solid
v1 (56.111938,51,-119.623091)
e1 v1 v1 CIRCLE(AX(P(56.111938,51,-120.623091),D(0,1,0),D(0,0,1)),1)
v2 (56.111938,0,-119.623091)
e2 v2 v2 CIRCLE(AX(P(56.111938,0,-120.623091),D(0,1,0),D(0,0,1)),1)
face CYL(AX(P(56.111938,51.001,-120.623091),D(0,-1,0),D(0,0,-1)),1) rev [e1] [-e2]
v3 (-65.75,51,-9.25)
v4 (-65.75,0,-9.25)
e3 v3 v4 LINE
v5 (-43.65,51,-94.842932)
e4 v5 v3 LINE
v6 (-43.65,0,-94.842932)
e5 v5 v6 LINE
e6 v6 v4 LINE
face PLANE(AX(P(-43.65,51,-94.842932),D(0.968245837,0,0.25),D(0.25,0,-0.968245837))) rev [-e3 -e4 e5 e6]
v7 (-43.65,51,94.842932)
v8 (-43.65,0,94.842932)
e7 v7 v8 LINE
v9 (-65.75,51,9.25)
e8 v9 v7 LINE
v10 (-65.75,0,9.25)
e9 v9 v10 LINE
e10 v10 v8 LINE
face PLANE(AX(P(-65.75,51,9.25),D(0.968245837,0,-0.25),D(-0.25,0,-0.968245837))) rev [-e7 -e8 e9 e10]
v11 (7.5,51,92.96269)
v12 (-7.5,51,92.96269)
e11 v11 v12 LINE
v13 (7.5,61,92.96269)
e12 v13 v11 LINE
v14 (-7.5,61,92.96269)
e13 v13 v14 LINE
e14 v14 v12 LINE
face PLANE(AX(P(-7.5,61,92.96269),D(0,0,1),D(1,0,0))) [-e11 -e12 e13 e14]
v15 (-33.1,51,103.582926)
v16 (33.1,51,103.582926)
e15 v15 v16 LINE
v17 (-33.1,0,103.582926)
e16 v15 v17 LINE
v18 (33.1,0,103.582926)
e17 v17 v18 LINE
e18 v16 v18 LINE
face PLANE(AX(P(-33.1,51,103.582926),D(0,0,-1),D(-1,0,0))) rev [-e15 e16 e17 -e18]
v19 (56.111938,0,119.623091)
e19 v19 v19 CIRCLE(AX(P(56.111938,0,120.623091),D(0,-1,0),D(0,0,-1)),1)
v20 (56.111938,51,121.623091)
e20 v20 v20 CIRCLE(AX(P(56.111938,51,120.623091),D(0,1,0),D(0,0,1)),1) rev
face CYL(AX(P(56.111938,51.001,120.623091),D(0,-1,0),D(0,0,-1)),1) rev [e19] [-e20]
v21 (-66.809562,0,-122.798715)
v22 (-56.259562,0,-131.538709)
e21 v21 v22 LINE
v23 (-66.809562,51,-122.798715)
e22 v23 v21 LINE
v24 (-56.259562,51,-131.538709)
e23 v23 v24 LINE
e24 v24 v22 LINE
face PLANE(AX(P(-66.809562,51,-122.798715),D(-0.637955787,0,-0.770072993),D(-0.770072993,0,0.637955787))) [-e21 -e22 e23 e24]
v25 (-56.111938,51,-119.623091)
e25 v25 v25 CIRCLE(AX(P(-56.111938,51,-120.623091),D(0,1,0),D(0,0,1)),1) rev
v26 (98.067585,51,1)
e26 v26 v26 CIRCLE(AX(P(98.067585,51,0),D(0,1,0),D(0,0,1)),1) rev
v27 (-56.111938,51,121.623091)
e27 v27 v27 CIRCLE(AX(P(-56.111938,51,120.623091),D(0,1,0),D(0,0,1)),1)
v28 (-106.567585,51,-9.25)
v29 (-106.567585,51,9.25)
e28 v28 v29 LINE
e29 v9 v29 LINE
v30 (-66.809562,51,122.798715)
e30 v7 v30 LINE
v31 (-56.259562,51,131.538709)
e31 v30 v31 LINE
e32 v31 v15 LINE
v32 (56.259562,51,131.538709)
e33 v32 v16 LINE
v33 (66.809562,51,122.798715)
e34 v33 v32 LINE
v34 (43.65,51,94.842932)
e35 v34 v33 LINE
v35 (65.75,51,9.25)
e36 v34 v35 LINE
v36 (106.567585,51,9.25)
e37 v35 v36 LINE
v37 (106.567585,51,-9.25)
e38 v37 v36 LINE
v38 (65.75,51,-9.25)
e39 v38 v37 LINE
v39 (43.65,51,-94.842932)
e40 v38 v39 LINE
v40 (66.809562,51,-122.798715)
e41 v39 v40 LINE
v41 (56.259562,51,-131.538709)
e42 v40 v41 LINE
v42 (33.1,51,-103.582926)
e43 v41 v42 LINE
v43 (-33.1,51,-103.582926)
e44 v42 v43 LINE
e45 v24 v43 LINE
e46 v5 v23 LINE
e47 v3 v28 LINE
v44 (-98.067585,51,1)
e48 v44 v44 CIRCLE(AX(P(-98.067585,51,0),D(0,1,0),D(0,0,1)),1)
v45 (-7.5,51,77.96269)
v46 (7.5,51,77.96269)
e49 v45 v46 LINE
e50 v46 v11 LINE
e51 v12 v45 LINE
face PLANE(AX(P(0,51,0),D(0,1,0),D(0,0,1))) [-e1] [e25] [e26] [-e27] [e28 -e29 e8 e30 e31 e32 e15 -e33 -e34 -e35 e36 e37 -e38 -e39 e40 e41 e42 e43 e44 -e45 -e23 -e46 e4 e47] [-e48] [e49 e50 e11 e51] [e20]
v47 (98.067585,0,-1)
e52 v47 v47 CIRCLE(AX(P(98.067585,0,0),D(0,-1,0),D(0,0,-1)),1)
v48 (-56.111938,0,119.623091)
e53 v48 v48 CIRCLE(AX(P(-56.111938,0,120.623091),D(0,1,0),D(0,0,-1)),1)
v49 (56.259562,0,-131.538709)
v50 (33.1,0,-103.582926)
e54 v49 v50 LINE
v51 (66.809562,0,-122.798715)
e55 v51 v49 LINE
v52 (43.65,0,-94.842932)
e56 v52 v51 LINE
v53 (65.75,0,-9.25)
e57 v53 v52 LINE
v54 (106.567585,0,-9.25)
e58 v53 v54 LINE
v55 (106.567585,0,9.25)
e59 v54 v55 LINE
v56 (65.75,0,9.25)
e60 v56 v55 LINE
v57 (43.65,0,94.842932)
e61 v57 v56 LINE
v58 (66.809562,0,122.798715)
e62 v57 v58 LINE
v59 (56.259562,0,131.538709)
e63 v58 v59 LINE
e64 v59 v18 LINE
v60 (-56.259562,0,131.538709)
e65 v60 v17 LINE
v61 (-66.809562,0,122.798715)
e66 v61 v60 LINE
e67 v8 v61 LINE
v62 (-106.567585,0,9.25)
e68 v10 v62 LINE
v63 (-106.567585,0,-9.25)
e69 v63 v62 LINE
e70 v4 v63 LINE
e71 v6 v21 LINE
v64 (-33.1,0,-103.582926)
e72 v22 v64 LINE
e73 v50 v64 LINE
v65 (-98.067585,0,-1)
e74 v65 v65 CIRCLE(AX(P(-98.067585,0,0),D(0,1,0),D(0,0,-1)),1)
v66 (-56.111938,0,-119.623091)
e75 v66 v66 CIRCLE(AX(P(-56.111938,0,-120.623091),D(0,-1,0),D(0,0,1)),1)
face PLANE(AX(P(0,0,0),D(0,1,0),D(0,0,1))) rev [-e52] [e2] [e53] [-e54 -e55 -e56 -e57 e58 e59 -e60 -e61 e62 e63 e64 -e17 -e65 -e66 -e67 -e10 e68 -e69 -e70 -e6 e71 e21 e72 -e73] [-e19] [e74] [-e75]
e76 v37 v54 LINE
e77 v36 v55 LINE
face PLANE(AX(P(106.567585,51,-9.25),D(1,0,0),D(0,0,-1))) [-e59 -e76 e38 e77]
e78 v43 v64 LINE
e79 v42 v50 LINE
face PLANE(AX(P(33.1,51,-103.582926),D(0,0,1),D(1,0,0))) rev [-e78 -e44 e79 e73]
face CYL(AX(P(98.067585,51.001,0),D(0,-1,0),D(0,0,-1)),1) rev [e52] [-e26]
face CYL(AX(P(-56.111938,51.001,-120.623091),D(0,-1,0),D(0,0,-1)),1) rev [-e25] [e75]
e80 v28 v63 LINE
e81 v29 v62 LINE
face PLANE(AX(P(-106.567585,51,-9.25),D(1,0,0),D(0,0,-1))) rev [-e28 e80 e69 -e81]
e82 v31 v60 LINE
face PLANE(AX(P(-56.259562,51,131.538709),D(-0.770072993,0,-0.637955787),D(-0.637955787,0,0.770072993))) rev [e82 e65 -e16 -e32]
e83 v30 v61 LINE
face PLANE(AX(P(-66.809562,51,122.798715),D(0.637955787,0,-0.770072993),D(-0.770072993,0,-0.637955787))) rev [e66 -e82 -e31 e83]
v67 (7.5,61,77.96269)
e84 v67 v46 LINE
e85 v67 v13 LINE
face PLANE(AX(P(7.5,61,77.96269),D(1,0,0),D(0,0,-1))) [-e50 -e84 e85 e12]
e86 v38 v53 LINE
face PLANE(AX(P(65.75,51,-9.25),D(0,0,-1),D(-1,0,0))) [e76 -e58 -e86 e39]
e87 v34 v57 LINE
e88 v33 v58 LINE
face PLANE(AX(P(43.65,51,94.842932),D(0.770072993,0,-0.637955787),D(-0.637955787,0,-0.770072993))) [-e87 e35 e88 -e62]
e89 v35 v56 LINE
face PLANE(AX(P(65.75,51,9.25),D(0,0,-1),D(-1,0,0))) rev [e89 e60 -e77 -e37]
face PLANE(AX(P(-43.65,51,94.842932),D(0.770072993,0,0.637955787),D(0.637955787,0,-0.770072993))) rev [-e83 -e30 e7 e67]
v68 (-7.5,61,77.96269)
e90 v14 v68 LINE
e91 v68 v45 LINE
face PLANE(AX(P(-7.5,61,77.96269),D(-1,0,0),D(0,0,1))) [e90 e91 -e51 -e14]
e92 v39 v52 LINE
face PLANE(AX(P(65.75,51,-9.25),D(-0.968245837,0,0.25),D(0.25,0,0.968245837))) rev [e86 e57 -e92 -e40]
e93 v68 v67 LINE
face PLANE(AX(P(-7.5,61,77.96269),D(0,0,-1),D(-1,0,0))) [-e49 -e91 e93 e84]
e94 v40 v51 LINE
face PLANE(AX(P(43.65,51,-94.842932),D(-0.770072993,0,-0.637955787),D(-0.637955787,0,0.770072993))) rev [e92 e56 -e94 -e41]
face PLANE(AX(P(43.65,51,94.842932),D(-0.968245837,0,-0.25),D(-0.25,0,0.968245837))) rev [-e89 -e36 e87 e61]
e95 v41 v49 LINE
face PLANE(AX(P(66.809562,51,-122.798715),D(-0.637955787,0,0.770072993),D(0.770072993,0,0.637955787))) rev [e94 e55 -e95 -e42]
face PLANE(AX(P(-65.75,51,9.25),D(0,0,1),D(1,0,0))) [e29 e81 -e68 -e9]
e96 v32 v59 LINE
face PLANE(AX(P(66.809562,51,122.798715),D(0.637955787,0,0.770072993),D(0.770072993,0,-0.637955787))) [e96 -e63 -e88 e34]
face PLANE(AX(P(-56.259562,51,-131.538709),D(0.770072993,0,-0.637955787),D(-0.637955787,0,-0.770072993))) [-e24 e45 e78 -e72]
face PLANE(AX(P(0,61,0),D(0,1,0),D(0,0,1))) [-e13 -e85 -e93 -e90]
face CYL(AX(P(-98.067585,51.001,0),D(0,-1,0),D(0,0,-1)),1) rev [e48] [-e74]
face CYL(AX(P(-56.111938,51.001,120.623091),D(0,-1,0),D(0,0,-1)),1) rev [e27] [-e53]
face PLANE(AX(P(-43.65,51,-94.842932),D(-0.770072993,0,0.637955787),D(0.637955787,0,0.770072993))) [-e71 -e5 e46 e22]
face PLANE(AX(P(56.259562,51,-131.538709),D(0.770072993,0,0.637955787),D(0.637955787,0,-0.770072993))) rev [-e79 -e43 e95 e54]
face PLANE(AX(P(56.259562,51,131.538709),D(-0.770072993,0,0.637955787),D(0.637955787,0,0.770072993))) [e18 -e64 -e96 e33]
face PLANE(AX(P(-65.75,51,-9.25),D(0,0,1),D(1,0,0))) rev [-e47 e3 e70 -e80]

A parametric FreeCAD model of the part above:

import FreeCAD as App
import Part
import Sketcher


def add_polygon(sketch, points):
    """Adds a closed chain of lines whose ends are joined by coincident constraints."""
    first, n = sketch.GeometryCount, len(points)
    for a, b in zip(points, points[1:] + points[:1]):
        sketch.addGeometry(Part.LineSegment(App.Vector(*a, 0), App.Vector(*b, 0)), False)
    for i in range(n):
        sketch.addConstraint(Sketcher.Constraint("Coincident", first + i, 2, first + (i + 1) % n, 1))

doc = App.newDocument("Part")
params = doc.addObject("Spreadsheet::Sheet", "Params")
for row, (alias, value) in enumerate([
    ("sketch1_width", "66.2 mm"),
    ("sketch1_height", "18.5 mm"),
    ("sketch1_length", "88.4 mm"),
    ("sketch1_length2", "13.7 mm"),
    ("pad1_length", "51 mm"),
    ("sketch2_diameter", "2 mm"),
    ("pocket1_length", "51 mm"),
    ("sketch3_diameter", "2 mm"),
    ("pocket2_length", "51 mm"),
    ("sketch4_diameter", "2 mm"),
    ("pocket3_length", "51 mm"),
    ("sketch5_width", "15 mm"),
    ("pad2_length", "10 mm"),
], start=1):
    params.set(f"A{row}", alias)
    params.set(f"B{row}", "=" + value)
    params.setAlias(f"B{row}", alias)

body = doc.addObject("PartDesign::Body", "Body")

# Sketch on XZ plane
sketch1 = body.newObject("Sketcher::SketchObject", "Sketch")
sketch1.AttachmentSupport = (doc.getObject("XZ_Plane"), [""])
sketch1.MapMode = "FlatFace"
add_polygon(sketch1, [(44, 95), (66, 9), (107, 9), (107, -9), (66, -9), (44, -95), (67, -123), (56, -132), (33, -104), (-33, -104), (-56, -132), (-67, -123), (-44, -95), (-66, -9), (-107, -9), (-107, 9), (-66, 9), (-44, 95), (-67, 123), (-56, 132), (-33, 104), (33, 104), (56, 132), (67, 123)])  # lines 0-23
sketch1.addConstraint(Sketcher.Constraint("Horizontal", 1))
sketch1.addConstraint(Sketcher.Constraint("Vertical", 2))
sketch1.addConstraint(Sketcher.Constraint("Horizontal", 3))
sketch1.addConstraint(Sketcher.Constraint("Horizontal", 8))
sketch1.addConstraint(Sketcher.Constraint("Horizontal", 13))
sketch1.addConstraint(Sketcher.Constraint("Vertical", 14))
sketch1.addConstraint(Sketcher.Constraint("Horizontal", 15))
sketch1.addConstraint(Sketcher.Constraint("Horizontal", 20))
sketch1.addConstraint(Sketcher.Constraint("Symmetric", 0, 2, 12, 2, -1, 1))
sketch1.addConstraint(Sketcher.Constraint("Symmetric", 2, 2, 14, 2, -1, 1))
sketch1.addConstraint(Sketcher.Constraint("Symmetric", 4, 2, 16, 2, -1, 1))
sketch1.addConstraint(Sketcher.Constraint("Symmetric", 5, 2, 17, 2, -1, 1))
sketch1.addConstraint(Sketcher.Constraint("Symmetric", 6, 2, 18, 2, -1, 1))
sketch1.addConstraint(Sketcher.Constraint("Symmetric", 7, 2, 19, 2, -1, 1))
sketch1.addConstraint(Sketcher.Constraint("Symmetric", 9, 2, 21, 2, -1, 1))
sketch1.addConstraint(Sketcher.Constraint("Symmetric", 10, 2, 22, 2, -1, 1))
sketch1.addConstraint(Sketcher.Constraint("Symmetric", 11, 2, 23, 2, -1, 1))
sketch1.addConstraint(Sketcher.Constraint("Symmetric", 6, 2, 9, 2, -2))
sketch1.addConstraint(Sketcher.Constraint("Symmetric", 5, 2, 10, 2, -2))
sketch1.addConstraint(Sketcher.Constraint("Symmetric", 4, 2, 11, 2, -2))
sketch1.addConstraint(Sketcher.Constraint("Symmetric", 3, 2, 12, 2, -2))
sketch1.addConstraint(Sketcher.Constraint("Perpendicular", 5, 6))
sketch1.addConstraint(Sketcher.Constraint("Perpendicular", 6, 7))
sketch1.addConstraint(Sketcher.Constraint("Perpendicular", 9, 10))
sketch1.addConstraint(Sketcher.Constraint("Parallel", 4, 16))
sketch1.addConstraint(Sketcher.Constraint("Parallel", 11, 21))
sketch1.addConstraint(Sketcher.Constraint("Equal", 5, 7))
sketch1.addConstraint(Sketcher.Constraint("DistanceX", 8, 2, 8, 1, 66.2))
sketch1.addConstraint(Sketcher.Constraint("DistanceY", 2, 2, 2, 1, 18.5))
sketch1.addConstraint(Sketcher.Constraint("Distance", 0, 88.4))
sketch1.addConstraint(Sketcher.Constraint("Distance", 6, 13.7))
sketch1.addConstraint(Sketcher.Constraint("DistanceX", 4, 2, 3, 2, 22.1))
sketch1.addConstraint(Sketcher.Constraint("DistanceX", 11, 2, 4, 2, 87.3))
sketch1.addConstraint(Sketcher.Constraint("Distance", 5, 36.30277))
sketch1.addConstraint(Sketcher.Constraint("DistanceX", 1, 1, 1, 2, 40.817585))
sketch1.setExpression("Constraints[51]", "Params.sketch1_width")
sketch1.setExpression("Constraints[52]", "Params.sketch1_height")
sketch1.setExpression("Constraints[53]", "Params.sketch1_length")
sketch1.setExpression("Constraints[54]", "Params.sketch1_length2")
pad1 = body.newObject("PartDesign::Pad", "Pad")
pad1.Profile = sketch1
pad1.setExpression("Length", "Params.pad1_length")
pad1.Reversed = True

# Sketch on XZ plane
sketch2 = body.newObject("Sketcher::SketchObject", "Sketch001")
sketch2.AttachmentSupport = (doc.getObject("XZ_Plane"), [""])
sketch2.MapMode = "FlatFace"
sketch2.addGeometry(Part.Circle(App.Vector(98.1, 0, 0), App.Vector(0, 0, 1), 1), False)
sketch2.addConstraint(Sketcher.Constraint("PointOnObject", 0, 3, -1))
sketch2.addConstraint(Sketcher.Constraint("Diameter", 0, 2.0))
sketch2.addConstraint(Sketcher.Constraint("DistanceX", -1, 1, 0, 3, 98.067585))
sketch2.setExpression("Constraints[1]", "Params.sketch2_diameter")
pocket1 = body.newObject("PartDesign::Pocket", "Pocket")
pocket1.Profile = sketch2
pocket1.setExpression("Length", "Params.pocket1_length")
doc.recompute()

mirrored = body.newObject("PartDesign::Mirrored", "Mirrored")
mirrored.Originals = [pocket1]
mirrored.MirrorPlane = (doc.getObject("YZ_Plane"), [""])
body.Tip = mirrored

# Sketch on XZ plane
sketch3 = body.newObject("Sketcher::SketchObject", "Sketch002")
sketch3.AttachmentSupport = (doc.getObject("XZ_Plane"), [""])
sketch3.MapMode = "FlatFace"
sketch3.addGeometry(Part.Circle(App.Vector(56.1, 120.6, 0), App.Vector(0, 0, 1), 1), False)
sketch3.addConstraint(Sketcher.Constraint("Diameter", 0, 2.0))
sketch3.addConstraint(Sketcher.Constraint("DistanceY", -1, 1, 0, 3, 120.623091))
sketch3.addConstraint(Sketcher.Constraint("DistanceX", -1, 1, 0, 3, 56.111938))
sketch3.setExpression("Constraints[0]", "Params.sketch3_diameter")
pocket2 = body.newObject("PartDesign::Pocket", "Pocket001")
pocket2.Profile = sketch3
pocket2.setExpression("Length", "Params.pocket2_length")
doc.recompute()

mirrored2 = body.newObject("PartDesign::Mirrored", "Mirrored001")
mirrored2.Originals = [pocket2]
mirrored2.MirrorPlane = (doc.getObject("YZ_Plane"), [""])
body.Tip = mirrored2
doc.recompute()

mirrored3 = body.newObject("PartDesign::Mirrored", "Mirrored002")
mirrored3.Originals = [pocket2]
mirrored3.MirrorPlane = (doc.getObject("XY_Plane"), [""])
body.Tip = mirrored3

# Sketch on XZ plane
sketch4 = body.newObject("Sketcher::SketchObject", "Sketch003")
sketch4.AttachmentSupport = (doc.getObject("XZ_Plane"), [""])
sketch4.MapMode = "FlatFace"
sketch4.addGeometry(Part.Circle(App.Vector(-56.1, -120.6, 0), App.Vector(0, 0, 1), 1), False)
sketch4.addConstraint(Sketcher.Constraint("Diameter", 0, 2.0))
sketch4.addConstraint(Sketcher.Constraint("DistanceY", 0, 3, -1, 1, 120.623091))
sketch4.addConstraint(Sketcher.Constraint("DistanceX", 0, 3, -1, 1, 56.111938))
sketch4.setExpression("Constraints[0]", "Params.sketch4_diameter")
pocket3 = body.newObject("PartDesign::Pocket", "Pocket002")
pocket3.Profile = sketch4
pocket3.setExpression("Length", "Params.pocket3_length")

# Sketch on XZ plane
sketch5 = body.newObject("Sketcher::SketchObject", "Sketch004")
sketch5.AttachmentSupport = (doc.getObject("XZ_Plane"), [""])
sketch5.MapMode = "FlatFace"
sketch5.AttachmentOffset = App.Placement(App.Vector(0, 0, -51), App.Rotation())
add_polygon(sketch5, [(-8, 93), (-8, 78), (8, 78), (8, 93)])  # lines 0-3
sketch5.addConstraint(Sketcher.Constraint("Vertical", 0))
sketch5.addConstraint(Sketcher.Constraint("Horizontal", 1))
sketch5.addConstraint(Sketcher.Constraint("Vertical", 2))
sketch5.addConstraint(Sketcher.Constraint("Horizontal", 3))
sketch5.addConstraint(Sketcher.Constraint("Equal", 3, 0))
sketch5.addConstraint(Sketcher.Constraint("DistanceX", 1, 1, 1, 2, 15.0))
sketch5.addConstraint(Sketcher.Constraint("DistanceX", 0, 2, -1, 1, 7.5))
sketch5.addConstraint(Sketcher.Constraint("DistanceY", -1, 1, 0, 2, 77.96269))
sketch5.setExpression("Constraints[9]", "Params.sketch5_width")
pad2 = body.newObject("PartDesign::Pad", "Pad001")
pad2.Profile = sketch5
pad2.setExpression("Length", "Params.pad2_length")
pad2.Reversed = True

doc.recompute()
